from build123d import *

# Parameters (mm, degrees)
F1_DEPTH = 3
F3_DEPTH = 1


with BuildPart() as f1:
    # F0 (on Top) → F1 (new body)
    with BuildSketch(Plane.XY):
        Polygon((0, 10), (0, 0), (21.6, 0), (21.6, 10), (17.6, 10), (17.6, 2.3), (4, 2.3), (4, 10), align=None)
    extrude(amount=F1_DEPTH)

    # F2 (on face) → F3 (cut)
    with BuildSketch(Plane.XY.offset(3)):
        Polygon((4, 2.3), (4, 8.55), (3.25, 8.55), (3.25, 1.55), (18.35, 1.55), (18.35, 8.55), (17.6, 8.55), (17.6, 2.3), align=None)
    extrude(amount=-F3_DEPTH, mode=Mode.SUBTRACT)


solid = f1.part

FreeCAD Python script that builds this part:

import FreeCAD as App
import Part
import Sketcher

doc = App.newDocument("Part")
body = doc.addObject("PartDesign::Body", "Body")

# Sketch on XY plane
sketch1 = body.newObject("Sketcher::SketchObject", "Sketch")
sketch1.AttachmentSupport = (doc.getObject("XY_Plane"), [""])
sketch1.MapMode = "FlatFace"
sketch1.addGeometry(Part.LineSegment(App.Vector(0, 10, 0), App.Vector(0, 0, 0)), False)
sketch1.addGeometry(Part.LineSegment(App.Vector(0, 0, 0), App.Vector(21.6, 0, 0)), False)
sketch1.addGeometry(Part.LineSegment(App.Vector(21.6, 0, 0), App.Vector(21.6, 10, 0)), False)
sketch1.addGeometry(Part.LineSegment(App.Vector(21.6, 10, 0), App.Vector(17.6, 10, 0)), False)
sketch1.addGeometry(Part.LineSegment(App.Vector(17.6, 10, 0), App.Vector(17.6, 2.3, 0)), False)
sketch1.addGeometry(Part.LineSegment(App.Vector(17.6, 2.3, 0), App.Vector(4, 2.3, 0)), False)
sketch1.addGeometry(Part.LineSegment(App.Vector(4, 2.3, 0), App.Vector(4, 10, 0)), False)
sketch1.addGeometry(Part.LineSegment(App.Vector(4, 10, 0), App.Vector(0, 10, 0)), False)
sketch1.addConstraint(Sketcher.Constraint("Coincident", 0, 2, 1, 1))
sketch1.addConstraint(Sketcher.Constraint("Coincident", 1, 2, 2, 1))
sketch1.addConstraint(Sketcher.Constraint("Coincident", 2, 2, 3, 1))
sketch1.addConstraint(Sketcher.Constraint("Coincident", 3, 2, 4, 1))
sketch1.addConstraint(Sketcher.Constraint("Coincident", 4, 2, 5, 1))
sketch1.addConstraint(Sketcher.Constraint("Coincident", 5, 2, 6, 1))
sketch1.addConstraint(Sketcher.Constraint("Coincident", 6, 2, 7, 1))
sketch1.addConstraint(Sketcher.Constraint("Coincident", 7, 2, 0, 1))
sketch1.addConstraint(Sketcher.Constraint("Vertical", 0))
sketch1.addConstraint(Sketcher.Constraint("Horizontal", 1))
sketch1.addConstraint(Sketcher.Constraint("Vertical", 2))
sketch1.addConstraint(Sketcher.Constraint("Horizontal", 3))
sketch1.addConstraint(Sketcher.Constraint("Vertical", 4))
sketch1.addConstraint(Sketcher.Constraint("Horizontal", 5))
sketch1.addConstraint(Sketcher.Constraint("Vertical", 6))
sketch1.addConstraint(Sketcher.Constraint("Horizontal", 7))
sketch1.addConstraint(Sketcher.Constraint("Coincident", 0, 2, -1, 1))
sketch1.addConstraint(Sketcher.Constraint("Horizontal", 3, 2, 6, 2))
sketch1.addConstraint(Sketcher.Constraint("Equal", 3, 7))
sketch1.addConstraint(Sketcher.Constraint("DistanceX", 3, 2, 3, 1, 4.0))
sketch1.addConstraint(Sketcher.Constraint("DistanceY", 0, 2, 0, 1, 10.0))
sketch1.addConstraint(Sketcher.Constraint("DistanceX", 1, 1, 1, 2, 21.6))
sketch1.addConstraint(Sketcher.Constraint("DistanceY", 4, 2, 4, 1, 7.7))
pad1 = body.newObject("PartDesign::Pad", "Pad")
pad1.Profile = sketch1
pad1.Length = 3

# Sketch on XY plane
sketch2 = body.newObject("Sketcher::SketchObject", "Sketch001")
sketch2.AttachmentSupport = (doc.getObject("XY_Plane"), [""])
sketch2.MapMode = "FlatFace"
sketch2.AttachmentOffset = App.Placement(App.Vector(0, 0, 3), App.Rotation())
sketch2.addGeometry(Part.LineSegment(App.Vector(4, 2.3, 0), App.Vector(4, 8.6, 0)), False)
sketch2.addGeometry(Part.LineSegment(App.Vector(4, 8.6, 0), App.Vector(3.2, 8.6, 0)), False)
sketch2.addGeometry(Part.LineSegment(App.Vector(3.2, 8.6, 0), App.Vector(3.2, 1.6, 0)), False)
sketch2.addGeometry(Part.LineSegment(App.Vector(3.2, 1.6, 0), App.Vector(18.4, 1.6, 0)), False)
sketch2.addGeometry(Part.LineSegment(App.Vector(18.4, 1.6, 0), App.Vector(18.4, 8.6, 0)), False)
sketch2.addGeometry(Part.LineSegment(App.Vector(18.4, 8.6, 0), App.Vector(17.6, 8.6, 0)), False)
sketch2.addGeometry(Part.LineSegment(App.Vector(17.6, 8.6, 0), App.Vector(17.6, 2.3, 0)), False)
sketch2.addGeometry(Part.LineSegment(App.Vector(17.6, 2.3, 0), App.Vector(4, 2.3, 0)), False)
sketch2.addConstraint(Sketcher.Constraint("Coincident", 0, 2, 1, 1))
sketch2.addConstraint(Sketcher.Constraint("Coincident", 1, 2, 2, 1))
sketch2.addConstraint(Sketcher.Constraint("Coincident", 2, 2, 3, 1))
sketch2.addConstraint(Sketcher.Constraint("Coincident", 3, 2, 4, 1))
sketch2.addConstraint(Sketcher.Constraint("Coincident", 4, 2, 5, 1))
sketch2.addConstraint(Sketcher.Constraint("Coincident", 5, 2, 6, 1))
sketch2.addConstraint(Sketcher.Constraint("Coincident", 6, 2, 7, 1))
sketch2.addConstraint(Sketcher.Constraint("Coincident", 7, 2, 0, 1))
sketch2.addConstraint(Sketcher.Constraint("Vertical", 0))
sketch2.addConstraint(Sketcher.Constraint("Horizontal", 1))
sketch2.addConstraint(Sketcher.Constraint("Vertical", 2))
sketch2.addConstraint(Sketcher.Constraint("Horizontal", 3))
sketch2.addConstraint(Sketcher.Constraint("Vertical", 4))
sketch2.addConstraint(Sketcher.Constraint("Horizontal", 5))
sketch2.addConstraint(Sketcher.Constraint("Vertical", 6))
sketch2.addConstraint(Sketcher.Constraint("Horizontal", 7))
sketch2.addConstraint(Sketcher.Constraint("Horizontal", 1, 2, 4, 2))
sketch2.addConstraint(Sketcher.Constraint("Equal", 1, 5))
sketch2.addConstraint(Sketcher.Constraint("DistanceY", 2, 2, 2, 1, 7.0))
sketch2.addConstraint(Sketcher.Constraint("DistanceX", 3, 1, 3, 2, 15.1))
sketch2.addConstraint(Sketcher.Constraint("DistanceX", 7, 2, 7, 1, 13.6))
sketch2.addConstraint(Sketcher.Constraint("DistanceX", -1, 1, 0, 2, 4.0))
sketch2.addConstraint(Sketcher.Constraint("DistanceY", 0, 1, 0, 2, 6.25))
sketch2.addConstraint(Sketcher.Constraint("DistanceY", -1, 1, 6, 2, 2.3))
pocket1 = body.newObject("PartDesign::Pocket", "Pocket")
pocket1.Profile = sketch2
pocket1.Length = 1

doc.recompute()
